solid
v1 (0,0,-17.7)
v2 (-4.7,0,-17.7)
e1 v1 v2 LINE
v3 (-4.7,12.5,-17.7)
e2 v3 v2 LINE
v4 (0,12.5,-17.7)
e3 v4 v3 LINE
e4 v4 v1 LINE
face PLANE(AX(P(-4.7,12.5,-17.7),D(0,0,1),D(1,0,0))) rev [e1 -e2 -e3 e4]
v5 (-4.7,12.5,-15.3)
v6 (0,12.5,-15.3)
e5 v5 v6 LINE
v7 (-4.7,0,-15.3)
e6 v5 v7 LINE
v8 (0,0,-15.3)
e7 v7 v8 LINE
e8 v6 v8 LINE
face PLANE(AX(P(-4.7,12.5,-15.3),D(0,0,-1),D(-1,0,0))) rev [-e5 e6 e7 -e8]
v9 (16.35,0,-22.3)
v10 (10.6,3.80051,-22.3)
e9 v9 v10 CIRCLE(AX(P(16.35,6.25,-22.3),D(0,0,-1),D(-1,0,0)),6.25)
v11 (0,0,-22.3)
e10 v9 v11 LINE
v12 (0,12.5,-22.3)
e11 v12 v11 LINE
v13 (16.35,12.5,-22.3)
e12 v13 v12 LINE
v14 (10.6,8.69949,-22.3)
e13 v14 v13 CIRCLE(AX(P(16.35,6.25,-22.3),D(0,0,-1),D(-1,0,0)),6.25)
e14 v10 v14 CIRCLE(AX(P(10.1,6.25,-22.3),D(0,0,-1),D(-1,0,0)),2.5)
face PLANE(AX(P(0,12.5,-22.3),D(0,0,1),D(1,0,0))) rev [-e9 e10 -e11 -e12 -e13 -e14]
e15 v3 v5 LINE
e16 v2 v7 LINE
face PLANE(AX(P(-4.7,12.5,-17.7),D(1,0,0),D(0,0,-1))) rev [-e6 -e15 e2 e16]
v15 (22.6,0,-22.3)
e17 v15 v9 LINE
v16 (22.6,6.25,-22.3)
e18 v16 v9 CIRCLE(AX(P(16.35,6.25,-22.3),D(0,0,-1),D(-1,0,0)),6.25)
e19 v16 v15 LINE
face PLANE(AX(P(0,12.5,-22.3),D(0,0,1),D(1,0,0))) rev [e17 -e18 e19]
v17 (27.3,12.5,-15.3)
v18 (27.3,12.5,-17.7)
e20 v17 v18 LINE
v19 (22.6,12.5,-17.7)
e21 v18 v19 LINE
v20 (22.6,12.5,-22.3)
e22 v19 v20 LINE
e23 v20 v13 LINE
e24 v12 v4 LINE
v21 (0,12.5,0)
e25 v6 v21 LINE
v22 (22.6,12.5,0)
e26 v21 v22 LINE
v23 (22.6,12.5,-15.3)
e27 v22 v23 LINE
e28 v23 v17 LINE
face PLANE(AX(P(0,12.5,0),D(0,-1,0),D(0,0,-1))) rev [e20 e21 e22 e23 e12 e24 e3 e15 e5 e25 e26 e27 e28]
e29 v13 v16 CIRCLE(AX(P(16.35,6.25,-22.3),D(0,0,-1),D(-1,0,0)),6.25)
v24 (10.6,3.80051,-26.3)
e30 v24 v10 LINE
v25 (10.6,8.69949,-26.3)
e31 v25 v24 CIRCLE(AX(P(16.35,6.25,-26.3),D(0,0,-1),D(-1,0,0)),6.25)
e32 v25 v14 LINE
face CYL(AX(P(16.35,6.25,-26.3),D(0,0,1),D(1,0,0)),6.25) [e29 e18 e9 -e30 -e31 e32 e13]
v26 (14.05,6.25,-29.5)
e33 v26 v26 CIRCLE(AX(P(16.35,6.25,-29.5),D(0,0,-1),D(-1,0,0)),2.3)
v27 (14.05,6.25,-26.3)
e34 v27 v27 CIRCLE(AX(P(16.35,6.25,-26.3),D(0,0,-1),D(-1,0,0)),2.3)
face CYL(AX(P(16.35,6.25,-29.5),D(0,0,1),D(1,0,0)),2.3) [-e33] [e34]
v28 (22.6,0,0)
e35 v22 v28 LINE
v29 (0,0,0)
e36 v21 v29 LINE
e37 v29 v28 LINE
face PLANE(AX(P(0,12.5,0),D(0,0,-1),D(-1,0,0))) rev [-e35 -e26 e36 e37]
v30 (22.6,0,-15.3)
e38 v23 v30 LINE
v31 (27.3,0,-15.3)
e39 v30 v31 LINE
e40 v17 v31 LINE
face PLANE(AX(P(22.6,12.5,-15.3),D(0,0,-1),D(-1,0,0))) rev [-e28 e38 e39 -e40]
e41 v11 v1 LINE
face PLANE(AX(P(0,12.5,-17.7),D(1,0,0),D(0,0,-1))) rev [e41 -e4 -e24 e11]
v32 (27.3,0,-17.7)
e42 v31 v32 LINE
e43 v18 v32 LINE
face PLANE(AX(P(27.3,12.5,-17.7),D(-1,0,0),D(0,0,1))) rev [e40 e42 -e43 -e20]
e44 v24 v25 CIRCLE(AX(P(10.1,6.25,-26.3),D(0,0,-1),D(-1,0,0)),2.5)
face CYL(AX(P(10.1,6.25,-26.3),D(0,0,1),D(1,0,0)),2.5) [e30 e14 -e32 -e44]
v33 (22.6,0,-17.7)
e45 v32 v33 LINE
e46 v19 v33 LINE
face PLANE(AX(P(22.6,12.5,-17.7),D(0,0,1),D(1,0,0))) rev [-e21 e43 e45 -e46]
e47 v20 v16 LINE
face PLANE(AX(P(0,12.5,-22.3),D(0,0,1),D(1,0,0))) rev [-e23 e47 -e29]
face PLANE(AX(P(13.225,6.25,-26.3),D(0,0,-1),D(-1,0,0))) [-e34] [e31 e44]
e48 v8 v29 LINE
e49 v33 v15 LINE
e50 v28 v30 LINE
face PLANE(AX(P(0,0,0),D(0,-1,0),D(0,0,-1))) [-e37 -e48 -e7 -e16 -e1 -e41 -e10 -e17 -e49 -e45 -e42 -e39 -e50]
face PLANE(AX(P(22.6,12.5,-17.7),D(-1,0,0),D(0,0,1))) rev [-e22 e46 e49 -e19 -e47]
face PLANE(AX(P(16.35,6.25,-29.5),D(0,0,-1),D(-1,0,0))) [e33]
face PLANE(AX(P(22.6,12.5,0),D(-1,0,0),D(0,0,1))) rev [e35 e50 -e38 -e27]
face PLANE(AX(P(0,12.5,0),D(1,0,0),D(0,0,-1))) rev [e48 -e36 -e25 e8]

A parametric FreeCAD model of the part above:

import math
import FreeCAD as App
import Part
import Sketcher
Q = App.Units.Quantity


def add_polygon(sketch, points):
    """Adds a closed chain of lines whose ends are joined by coincident constraints."""
    first, n = sketch.GeometryCount, len(points)
    for a, b in zip(points, points[1:] + points[:1]):
        sketch.addGeometry(Part.LineSegment(App.Vector(*a, 0), App.Vector(*b, 0)), False)
    for i in range(n):
        sketch.addConstraint(Sketcher.Constraint("Coincident", first + i, 2, first + (i + 1) % n, 1))

doc = App.newDocument("Part")
body = doc.addObject("PartDesign::Body", "Body")

sketch1 = body.newObject("Sketcher::SketchObject", "Sketch")
sketch1.AttachmentSupport = (doc.getObject("XZ_Plane"), [""])
sketch1.MapMode = "FlatFace"
add_polygon(sketch1, [(0, -22.3), (0, -17.7), (-4.7, -17.7), (-4.7, -15.3), (0, -15.3), (0, 0), (22.6, 0), (22.6, -15.3), (27.3, -15.3), (27.3, -17.7), (22.6, -17.7), (22.6, -22.3)])
sketch1.addConstraint([
    Sketcher.Constraint("Vertical", 0),
    Sketcher.Constraint("Horizontal", 1),
    Sketcher.Constraint("Vertical", 2),
    Sketcher.Constraint("Horizontal", 3),
    Sketcher.Constraint("Vertical", 4),
    Sketcher.Constraint("Horizontal", 5),
    Sketcher.Constraint("Vertical", 6),
    Sketcher.Constraint("Horizontal", 7),
    Sketcher.Constraint("Vertical", 8),
    Sketcher.Constraint("Horizontal", 9),
    Sketcher.Constraint("Vertical", 10),
    Sketcher.Constraint("Horizontal", 11),
    Sketcher.Constraint("Coincident", 4, 2, -1, 1),
    Sketcher.Constraint("PointOnObject", 0, 2, -2),
    Sketcher.Constraint("Horizontal", 3, 2, 6, 2),
    Sketcher.Constraint("Horizontal", 1, 2, 8, 2),
    Sketcher.Constraint("Vertical", 6, 2, 9, 2),
    Sketcher.Constraint("Equal", 3, 7),
    Sketcher.Constraint("DistanceX", 1, 2, 1, 1, Q("4.7 mm")),
    Sketcher.Constraint("DistanceX", 5, 1, 5, 2, Q("22.6 mm")),
    Sketcher.Constraint("DistanceY", 0, 1, 0, 2, Q("4.6 mm")),
    Sketcher.Constraint("DistanceY", 2, 1, 2, 2, Q("2.4 mm")),
    Sketcher.Constraint("DistanceY", 4, 1, 4, 2, Q("15.3 mm")),
])
pad1 = body.newObject("PartDesign::Pad", "Pad")
pad1.Profile = sketch1
pad1.Length = 12.5
pad1.Reversed = True

sketch2 = body.newObject("Sketcher::SketchObject", "Sketch001")
sketch2.AttachmentSupport = (doc.getObject("XY_Plane"), [""])
sketch2.MapMode = "FlatFace"
sketch2.AttachmentOffset = App.Placement(App.Vector(0, 0, -22.3), App.Rotation())
sketch2.addGeometry([
    Part.ArcOfCircle(Part.Circle(App.Vector(16.4, 6.2, 0), App.Vector(0, 0, 1), 6.2), math.radians(-157), math.radians(157)),
    Part.ArcOfCircle(Part.Circle(App.Vector(10.1, 6.2, 0), App.Vector(0, 0, 1), 2.5), math.radians(78), math.radians(282)),
], False)
sketch2.addConstraint([
    Sketcher.Constraint("Coincident", 0, 1, 1, 2),
    Sketcher.Constraint("Coincident", 1, 1, 0, 2),
    Sketcher.Constraint("Horizontal", 0, 3, 1, 3),
    Sketcher.Constraint("Radius", 1, Q("2.5 mm")),
    Sketcher.Constraint("Radius", 0, Q("6.25 mm")),
    Sketcher.Constraint("DistanceX", -1, 1, 1, 3, Q("10.1 mm")),
    Sketcher.Constraint("DistanceX", -1, 1, 0, 1, Q("10.6 mm")),
    Sketcher.Constraint("DistanceY", -1, 1, 0, 3, Q("6.25 mm")),
])
pad2 = body.newObject("PartDesign::Pad", "Pad001")
pad2.Profile = sketch2
pad2.Length = 4
pad2.Reversed = True

sketch3 = body.newObject("Sketcher::SketchObject", "Sketch002")
sketch3.AttachmentSupport = (doc.getObject("XY_Plane"), [""])
sketch3.MapMode = "FlatFace"
sketch3.AttachmentOffset = App.Placement(App.Vector(0, 0, -26.3), App.Rotation())
sketch3.addGeometry(Part.Circle(App.Vector(16.4, 6.2, 0), App.Vector(0, 0, 1), 2.3), False)
sketch3.addConstraint([
    Sketcher.Constraint("Diameter", 0, Q("4.6 mm")),
    Sketcher.Constraint("DistanceX", -1, 1, 0, 3, Q("16.35 mm")),
    Sketcher.Constraint("DistanceY", -1, 1, 0, 3, Q("6.25 mm")),
])
pad3 = body.newObject("PartDesign::Pad", "Pad002")
pad3.Profile = sketch3
pad3.Length = 3.2
pad3.Reversed = True

doc.recompute()
